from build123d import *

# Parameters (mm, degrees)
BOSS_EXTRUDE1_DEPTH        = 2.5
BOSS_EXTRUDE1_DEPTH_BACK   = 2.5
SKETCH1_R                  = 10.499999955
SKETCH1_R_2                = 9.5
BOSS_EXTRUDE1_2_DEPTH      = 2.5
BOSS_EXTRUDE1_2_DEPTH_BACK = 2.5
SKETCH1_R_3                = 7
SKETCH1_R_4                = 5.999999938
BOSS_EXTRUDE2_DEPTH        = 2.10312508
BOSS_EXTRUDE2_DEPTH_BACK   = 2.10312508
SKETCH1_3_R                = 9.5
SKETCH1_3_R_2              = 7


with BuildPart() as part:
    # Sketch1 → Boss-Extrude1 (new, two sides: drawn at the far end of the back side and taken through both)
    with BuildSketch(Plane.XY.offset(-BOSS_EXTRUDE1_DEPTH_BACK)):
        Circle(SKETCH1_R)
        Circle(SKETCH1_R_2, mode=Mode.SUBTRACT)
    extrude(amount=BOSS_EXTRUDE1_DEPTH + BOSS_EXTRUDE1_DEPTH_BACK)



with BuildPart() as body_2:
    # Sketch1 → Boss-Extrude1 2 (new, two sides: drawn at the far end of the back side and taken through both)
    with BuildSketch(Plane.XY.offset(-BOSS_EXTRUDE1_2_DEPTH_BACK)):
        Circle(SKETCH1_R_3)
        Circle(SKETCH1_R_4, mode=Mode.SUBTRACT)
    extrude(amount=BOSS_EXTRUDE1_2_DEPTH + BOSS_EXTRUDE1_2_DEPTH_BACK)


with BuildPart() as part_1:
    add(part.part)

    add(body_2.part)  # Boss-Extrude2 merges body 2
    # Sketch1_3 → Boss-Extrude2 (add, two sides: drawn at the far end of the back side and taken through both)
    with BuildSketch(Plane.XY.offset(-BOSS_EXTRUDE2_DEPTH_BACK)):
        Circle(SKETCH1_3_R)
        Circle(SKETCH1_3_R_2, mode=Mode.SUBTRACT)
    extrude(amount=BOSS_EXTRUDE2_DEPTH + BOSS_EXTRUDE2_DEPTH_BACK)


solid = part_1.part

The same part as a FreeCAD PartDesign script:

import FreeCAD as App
import Part
import Sketcher
from FreeCAD import Vector

doc = App.newDocument("Part")
body = doc.addObject("PartDesign::Body", "Body")

sketch1 = doc.addObject("Sketcher::SketchObject", "Sketch")
body.addObject(sketch1)
sketch1.AttachmentSupport = (doc.XY_Plane, [""])
sketch1.MapMode = "FlatFace"
sketch1.addGeometry(Part.Circle(Vector(0, 0, 0), Vector(0, 0, 1), 10), False)
sketch1.addGeometry(Part.Circle(Vector(0, 0, 0), Vector(0, 0, 1), 10), False)
sketch1.addConstraint(Sketcher.Constraint("Coincident", 0, 3, -1, 1))
sketch1.addConstraint(Sketcher.Constraint("Coincident", 1, 3, -1, 1))
sketch1.addConstraint(Sketcher.Constraint("Diameter", 0, 21.0))
sketch1.addConstraint(Sketcher.Constraint("Diameter", 1, 19.0))
pad1 = doc.addObject("PartDesign::Pad", "Pad")
body.addObject(pad1)
pad1.Profile = sketch1
pad1.Type = "TwoLengths"
pad1.Length = 2.5
pad1.Length2 = 2.5
body2 = doc.addObject("PartDesign::Body", "Body001")

sketch2 = doc.addObject("Sketcher::SketchObject", "Sketch001")
body2.addObject(sketch2)
sketch2.AttachmentSupport = (doc.getObject("XY_Plane001"), [""])
sketch2.MapMode = "FlatFace"
sketch2.addGeometry(Part.Circle(Vector(0, 0, 0), Vector(0, 0, 1), 7), False)
sketch2.addGeometry(Part.Circle(Vector(0, 0, 0), Vector(0, 0, 1), 6), False)
sketch2.addConstraint(Sketcher.Constraint("Coincident", 0, 3, -1, 1))
sketch2.addConstraint(Sketcher.Constraint("Coincident", 1, 3, -1, 1))
sketch2.addConstraint(Sketcher.Constraint("Diameter", 0, 14.0))
sketch2.addConstraint(Sketcher.Constraint("Diameter", 1, 12.0))
pad2 = doc.addObject("PartDesign::Pad", "Pad001")
body2.addObject(pad2)
pad2.Profile = sketch2
pad2.Type = "TwoLengths"
pad2.Length = 2.5
pad2.Length2 = 2.5
body.AllowCompound = True
doc.recompute()

boolean = doc.addObject("PartDesign::Boolean", "Boolean")
body.addObject(boolean)
boolean.Type = "Fuse"
boolean.addObjects([body2])

sketch3 = doc.addObject("Sketcher::SketchObject", "Sketch002")
body.addObject(sketch3)
sketch3.AttachmentSupport = (doc.XY_Plane, [""])
sketch3.MapMode = "FlatFace"
sketch3.addGeometry(Part.Circle(Vector(0, 0, 0), Vector(0, 0, 1), 10), False)
sketch3.addGeometry(Part.Circle(Vector(0, 0, 0), Vector(0, 0, 1), 7), False)
sketch3.addConstraint(Sketcher.Constraint("Coincident", 0, 3, -1, 1))
sketch3.addConstraint(Sketcher.Constraint("Coincident", 1, 3, -1, 1))
sketch3.addConstraint(Sketcher.Constraint("Diameter", 0, 19.0))
sketch3.addConstraint(Sketcher.Constraint("Diameter", 1, 14.0))
pad3 = doc.addObject("PartDesign::Pad", "Pad002")
body.addObject(pad3)
pad3.Profile = sketch3
pad3.Type = "TwoLengths"
pad3.Length = 2.103125
pad3.Length2 = 2.103125

doc.recompute()
